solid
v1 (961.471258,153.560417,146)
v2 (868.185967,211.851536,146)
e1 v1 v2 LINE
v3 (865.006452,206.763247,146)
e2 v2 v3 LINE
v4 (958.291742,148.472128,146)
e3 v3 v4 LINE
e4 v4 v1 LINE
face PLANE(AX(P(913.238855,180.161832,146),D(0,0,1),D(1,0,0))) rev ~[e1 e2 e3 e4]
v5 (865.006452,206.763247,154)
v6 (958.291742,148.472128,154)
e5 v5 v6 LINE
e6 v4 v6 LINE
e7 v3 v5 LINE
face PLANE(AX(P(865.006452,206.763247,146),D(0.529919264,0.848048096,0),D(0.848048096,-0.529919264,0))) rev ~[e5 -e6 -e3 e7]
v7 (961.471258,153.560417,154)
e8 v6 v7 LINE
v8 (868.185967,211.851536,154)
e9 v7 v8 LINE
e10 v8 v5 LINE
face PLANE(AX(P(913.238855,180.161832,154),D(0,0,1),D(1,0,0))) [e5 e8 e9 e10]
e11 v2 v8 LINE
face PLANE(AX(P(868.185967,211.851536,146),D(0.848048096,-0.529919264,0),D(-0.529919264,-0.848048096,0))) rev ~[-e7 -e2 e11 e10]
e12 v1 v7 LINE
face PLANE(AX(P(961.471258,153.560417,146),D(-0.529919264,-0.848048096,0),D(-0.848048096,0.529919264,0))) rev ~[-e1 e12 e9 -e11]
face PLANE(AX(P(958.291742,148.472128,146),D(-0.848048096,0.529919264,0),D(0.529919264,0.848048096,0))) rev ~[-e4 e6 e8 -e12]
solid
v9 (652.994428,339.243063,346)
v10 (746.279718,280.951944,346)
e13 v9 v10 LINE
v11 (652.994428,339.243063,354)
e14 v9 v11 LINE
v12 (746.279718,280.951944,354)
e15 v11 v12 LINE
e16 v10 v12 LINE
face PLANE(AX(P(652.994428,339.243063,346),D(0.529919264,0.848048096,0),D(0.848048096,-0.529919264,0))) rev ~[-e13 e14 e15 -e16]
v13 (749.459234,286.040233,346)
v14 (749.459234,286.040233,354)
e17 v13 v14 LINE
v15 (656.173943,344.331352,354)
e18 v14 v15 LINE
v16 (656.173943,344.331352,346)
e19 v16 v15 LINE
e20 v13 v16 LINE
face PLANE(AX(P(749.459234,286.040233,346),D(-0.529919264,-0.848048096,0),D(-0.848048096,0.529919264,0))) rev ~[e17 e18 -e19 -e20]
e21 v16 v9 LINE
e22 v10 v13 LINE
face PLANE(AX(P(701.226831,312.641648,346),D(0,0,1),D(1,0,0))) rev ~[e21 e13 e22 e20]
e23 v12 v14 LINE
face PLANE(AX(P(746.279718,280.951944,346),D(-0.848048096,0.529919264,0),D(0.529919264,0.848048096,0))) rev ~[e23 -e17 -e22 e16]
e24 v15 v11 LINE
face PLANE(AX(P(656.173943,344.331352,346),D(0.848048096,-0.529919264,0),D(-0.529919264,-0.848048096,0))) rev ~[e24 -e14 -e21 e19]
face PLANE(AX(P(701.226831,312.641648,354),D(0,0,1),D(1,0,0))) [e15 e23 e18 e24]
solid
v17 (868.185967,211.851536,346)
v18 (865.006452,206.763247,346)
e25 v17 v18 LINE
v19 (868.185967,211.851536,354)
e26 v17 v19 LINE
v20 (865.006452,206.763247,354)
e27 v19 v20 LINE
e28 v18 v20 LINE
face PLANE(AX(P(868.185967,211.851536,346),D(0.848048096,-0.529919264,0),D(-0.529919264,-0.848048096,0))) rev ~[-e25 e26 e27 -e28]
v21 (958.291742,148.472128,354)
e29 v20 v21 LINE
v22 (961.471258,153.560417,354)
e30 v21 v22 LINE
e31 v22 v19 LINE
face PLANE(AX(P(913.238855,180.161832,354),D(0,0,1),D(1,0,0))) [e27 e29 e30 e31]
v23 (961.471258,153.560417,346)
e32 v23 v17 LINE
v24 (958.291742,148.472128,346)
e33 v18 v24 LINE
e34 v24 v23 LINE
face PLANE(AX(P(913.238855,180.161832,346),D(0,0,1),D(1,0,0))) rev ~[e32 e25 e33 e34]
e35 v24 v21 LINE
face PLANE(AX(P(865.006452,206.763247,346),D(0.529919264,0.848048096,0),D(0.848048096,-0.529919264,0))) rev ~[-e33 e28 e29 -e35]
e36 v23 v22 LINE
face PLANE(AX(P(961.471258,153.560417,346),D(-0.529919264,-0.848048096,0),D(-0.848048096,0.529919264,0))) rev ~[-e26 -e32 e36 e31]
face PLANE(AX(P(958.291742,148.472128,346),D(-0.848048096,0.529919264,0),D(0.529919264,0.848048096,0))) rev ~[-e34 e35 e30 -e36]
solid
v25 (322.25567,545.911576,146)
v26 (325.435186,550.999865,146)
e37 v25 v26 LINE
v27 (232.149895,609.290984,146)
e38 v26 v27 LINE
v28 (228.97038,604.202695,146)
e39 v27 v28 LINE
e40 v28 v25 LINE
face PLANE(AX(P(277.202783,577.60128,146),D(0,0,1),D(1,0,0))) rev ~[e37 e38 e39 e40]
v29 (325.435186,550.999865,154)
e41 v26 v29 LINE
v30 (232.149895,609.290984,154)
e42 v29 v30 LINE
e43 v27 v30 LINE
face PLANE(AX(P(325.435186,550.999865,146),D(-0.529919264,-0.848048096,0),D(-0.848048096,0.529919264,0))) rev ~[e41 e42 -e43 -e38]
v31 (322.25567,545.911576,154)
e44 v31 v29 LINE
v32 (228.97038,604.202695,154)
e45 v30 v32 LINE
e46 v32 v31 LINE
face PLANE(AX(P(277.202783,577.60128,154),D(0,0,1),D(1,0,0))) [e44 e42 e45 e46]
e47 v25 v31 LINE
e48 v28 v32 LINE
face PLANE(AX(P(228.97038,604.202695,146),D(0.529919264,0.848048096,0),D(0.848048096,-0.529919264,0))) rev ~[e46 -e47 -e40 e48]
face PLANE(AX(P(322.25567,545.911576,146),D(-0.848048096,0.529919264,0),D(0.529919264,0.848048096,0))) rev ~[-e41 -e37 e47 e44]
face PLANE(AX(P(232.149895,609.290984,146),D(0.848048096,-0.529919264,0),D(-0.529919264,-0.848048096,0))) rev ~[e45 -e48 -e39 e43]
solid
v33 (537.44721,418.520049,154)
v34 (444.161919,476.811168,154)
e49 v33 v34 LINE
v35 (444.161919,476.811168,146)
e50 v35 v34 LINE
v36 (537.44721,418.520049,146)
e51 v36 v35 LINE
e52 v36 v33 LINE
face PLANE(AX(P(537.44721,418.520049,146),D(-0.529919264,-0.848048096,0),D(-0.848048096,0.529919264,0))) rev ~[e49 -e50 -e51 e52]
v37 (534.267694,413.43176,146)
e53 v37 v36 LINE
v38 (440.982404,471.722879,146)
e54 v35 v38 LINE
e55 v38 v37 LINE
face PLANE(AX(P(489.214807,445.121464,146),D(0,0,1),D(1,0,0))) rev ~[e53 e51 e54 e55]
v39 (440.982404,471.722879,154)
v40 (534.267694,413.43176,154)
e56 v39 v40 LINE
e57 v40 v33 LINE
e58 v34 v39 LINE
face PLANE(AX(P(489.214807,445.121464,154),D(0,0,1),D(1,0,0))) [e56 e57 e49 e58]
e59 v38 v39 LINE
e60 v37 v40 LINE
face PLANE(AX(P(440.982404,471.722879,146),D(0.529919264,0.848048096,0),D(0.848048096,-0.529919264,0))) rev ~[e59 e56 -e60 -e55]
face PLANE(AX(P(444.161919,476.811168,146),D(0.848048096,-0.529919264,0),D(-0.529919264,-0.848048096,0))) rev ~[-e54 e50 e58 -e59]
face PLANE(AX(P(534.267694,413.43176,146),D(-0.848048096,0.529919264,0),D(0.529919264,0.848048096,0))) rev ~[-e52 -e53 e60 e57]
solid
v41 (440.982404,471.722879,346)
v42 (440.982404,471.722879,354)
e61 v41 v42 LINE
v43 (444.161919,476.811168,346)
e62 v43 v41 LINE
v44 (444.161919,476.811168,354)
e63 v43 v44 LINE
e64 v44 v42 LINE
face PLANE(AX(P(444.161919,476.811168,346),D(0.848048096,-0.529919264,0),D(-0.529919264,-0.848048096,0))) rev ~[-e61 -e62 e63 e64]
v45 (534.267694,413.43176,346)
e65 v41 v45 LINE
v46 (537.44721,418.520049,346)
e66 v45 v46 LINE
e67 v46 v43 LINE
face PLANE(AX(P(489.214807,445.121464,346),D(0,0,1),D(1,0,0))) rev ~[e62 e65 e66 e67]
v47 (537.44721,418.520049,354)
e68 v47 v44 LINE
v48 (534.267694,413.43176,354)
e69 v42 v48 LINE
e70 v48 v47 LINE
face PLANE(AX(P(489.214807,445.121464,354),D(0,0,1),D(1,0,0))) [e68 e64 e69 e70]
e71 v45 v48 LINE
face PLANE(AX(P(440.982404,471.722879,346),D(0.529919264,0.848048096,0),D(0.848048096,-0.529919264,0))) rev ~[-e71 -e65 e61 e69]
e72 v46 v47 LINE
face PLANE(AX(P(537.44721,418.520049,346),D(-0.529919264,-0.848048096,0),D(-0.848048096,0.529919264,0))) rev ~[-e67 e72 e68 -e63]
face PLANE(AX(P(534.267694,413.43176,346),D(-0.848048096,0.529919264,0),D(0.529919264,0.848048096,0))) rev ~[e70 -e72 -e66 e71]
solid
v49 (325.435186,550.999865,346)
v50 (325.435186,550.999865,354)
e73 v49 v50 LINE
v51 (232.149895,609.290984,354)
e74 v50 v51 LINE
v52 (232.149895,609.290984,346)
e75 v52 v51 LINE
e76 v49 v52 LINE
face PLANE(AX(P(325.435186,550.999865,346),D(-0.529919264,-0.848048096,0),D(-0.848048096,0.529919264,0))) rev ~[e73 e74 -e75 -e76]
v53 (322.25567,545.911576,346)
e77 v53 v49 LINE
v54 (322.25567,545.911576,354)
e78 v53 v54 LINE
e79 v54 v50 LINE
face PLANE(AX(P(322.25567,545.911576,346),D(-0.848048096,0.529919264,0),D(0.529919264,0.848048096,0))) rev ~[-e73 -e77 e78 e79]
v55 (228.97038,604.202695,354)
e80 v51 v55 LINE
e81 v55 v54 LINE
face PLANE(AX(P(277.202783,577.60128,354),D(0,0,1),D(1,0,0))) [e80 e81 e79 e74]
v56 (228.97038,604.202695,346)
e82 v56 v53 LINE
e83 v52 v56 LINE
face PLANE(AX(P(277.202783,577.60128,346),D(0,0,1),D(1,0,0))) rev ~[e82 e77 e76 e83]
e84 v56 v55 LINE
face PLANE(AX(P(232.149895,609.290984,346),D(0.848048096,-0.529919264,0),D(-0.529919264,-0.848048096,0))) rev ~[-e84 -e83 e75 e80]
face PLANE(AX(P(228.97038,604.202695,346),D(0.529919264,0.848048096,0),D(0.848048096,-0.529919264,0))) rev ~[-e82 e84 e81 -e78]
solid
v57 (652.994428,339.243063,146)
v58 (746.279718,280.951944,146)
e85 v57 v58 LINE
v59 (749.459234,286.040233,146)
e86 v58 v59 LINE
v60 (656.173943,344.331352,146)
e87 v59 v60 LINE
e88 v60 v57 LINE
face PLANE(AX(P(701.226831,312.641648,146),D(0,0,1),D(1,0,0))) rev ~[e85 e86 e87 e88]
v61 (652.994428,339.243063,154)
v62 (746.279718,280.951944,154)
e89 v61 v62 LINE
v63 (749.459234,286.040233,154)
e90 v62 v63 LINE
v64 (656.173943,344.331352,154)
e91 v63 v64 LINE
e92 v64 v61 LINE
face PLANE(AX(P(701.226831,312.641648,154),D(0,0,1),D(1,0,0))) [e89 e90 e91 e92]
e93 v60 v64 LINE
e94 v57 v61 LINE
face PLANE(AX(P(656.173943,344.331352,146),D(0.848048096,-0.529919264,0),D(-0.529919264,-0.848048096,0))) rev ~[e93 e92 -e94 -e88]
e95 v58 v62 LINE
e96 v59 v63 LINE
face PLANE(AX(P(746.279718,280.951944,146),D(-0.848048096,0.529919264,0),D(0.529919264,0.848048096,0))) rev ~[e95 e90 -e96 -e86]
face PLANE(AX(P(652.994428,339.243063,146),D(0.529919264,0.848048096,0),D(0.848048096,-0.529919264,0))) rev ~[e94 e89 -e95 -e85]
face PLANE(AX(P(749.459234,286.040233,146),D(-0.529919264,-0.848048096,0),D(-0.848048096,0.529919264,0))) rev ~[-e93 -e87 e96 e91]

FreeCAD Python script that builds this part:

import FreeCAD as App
import Part
import Sketcher

V = App.Vector
Q = App.Units.Quantity

doc = App.newDocument("Part")
params = doc.addObject("Spreadsheet::Sheet", "Params")
for row, (alias, value) in enumerate([
    ("sketch1_length", "110 mm"),
    ("sketch1_length2", "6 mm"),
    ("pad1_length", "8 mm"),
    ("sketch2_length", "110 mm"),
    ("sketch2_length2", "6 mm"),
    ("pad2_length", "8 mm"),
    ("sketch3_length", "110 mm"),
    ("sketch3_length2", "6 mm"),
    ("pad3_length", "8 mm"),
    ("sketch4_length", "110 mm"),
    ("sketch4_length2", "6 mm"),
    ("pad4_length", "8 mm"),
    ("sketch5_length", "110 mm"),
    ("sketch5_length2", "6 mm"),
    ("pad5_length", "8 mm"),
    ("sketch6_length", "110 mm"),
    ("sketch6_length2", "6 mm"),
    ("pad6_length", "8 mm"),
    ("sketch7_length", "110 mm"),
    ("sketch7_length2", "6 mm"),
    ("pad7_length", "8 mm"),
    ("sketch8_length", "110 mm"),
    ("sketch8_length2", "6 mm"),
    ("pad8_length", "8 mm"),
], start=1):
    params.set(f"A{row}", alias)
    params.set(f"B{row}", "=" + value)
    params.setAlias(f"B{row}", alias)

body = doc.addObject("PartDesign::Body", "Body")

# Sketch on XY plane
sketch1 = body.newObject("Sketcher::SketchObject", "Sketch")
sketch1.AttachmentSupport = (doc.getObject("XY_Plane"), [""])
sketch1.MapMode = "FlatFace"
sketch1.AttachmentOffset = App.Placement(V(0, 0, 146), App.Rotation())
sketch1.addGeometry([
    Part.LineSegment(V(229, 604, 0), V(322, 546, 0)),
    Part.LineSegment(V(322, 546, 0), V(325, 551, 0)),
    Part.LineSegment(V(325, 551, 0), V(232, 609, 0)),
    Part.LineSegment(V(232, 609, 0), V(229, 604, 0)),
], False)
sketch1.addConstraint([
    Sketcher.Constraint("Coincident", 0, 2, 1, 1),
    Sketcher.Constraint("Coincident", 1, 2, 2, 1),
    Sketcher.Constraint("Coincident", 2, 2, 3, 1),
    Sketcher.Constraint("Coincident", 3, 2, 0, 1),
    Sketcher.Constraint("Perpendicular", 0, 1),
    Sketcher.Constraint("Perpendicular", 1, 2),
    Sketcher.Constraint("Perpendicular", 2, 3),
    Sketcher.Constraint("Angle", 0, Q("-32 deg")),
    Sketcher.Constraint("Distance", 0, 110.0),
    Sketcher.Constraint("Distance", 1, 6.0),
    Sketcher.Constraint("DistanceX", -1, 1, 0, 2, 322.25567),
    Sketcher.Constraint("DistanceY", -1, 1, 0, 2, 545.911576),
])
sketch1.setExpression("Constraints[8]", "Params.sketch1_length")
sketch1.setExpression("Constraints[9]", "Params.sketch1_length2")
pad1 = body.newObject("PartDesign::Pad", "Pad")
pad1.Profile = sketch1
pad1.setExpression("Length", "Params.pad1_length")
body2 = doc.addObject("PartDesign::Body", "Body001")

# Sketch on XY plane
sketch2 = body2.newObject("Sketcher::SketchObject", "Sketch001")
sketch2.AttachmentSupport = (doc.getObject("XY_Plane001"), [""])
sketch2.MapMode = "FlatFace"
sketch2.AttachmentOffset = App.Placement(V(0, 0, 146), App.Rotation())
sketch2.addGeometry([
    Part.LineSegment(V(441, 472, 0), V(534, 413, 0)),
    Part.LineSegment(V(534, 413, 0), V(537, 419, 0)),
    Part.LineSegment(V(537, 419, 0), V(444, 477, 0)),
    Part.LineSegment(V(444, 477, 0), V(441, 472, 0)),
], False)
sketch2.addConstraint([
    Sketcher.Constraint("Coincident", 0, 2, 1, 1),
    Sketcher.Constraint("Coincident", 1, 2, 2, 1),
    Sketcher.Constraint("Coincident", 2, 2, 3, 1),
    Sketcher.Constraint("Coincident", 3, 2, 0, 1),
    Sketcher.Constraint("Perpendicular", 0, 1),
    Sketcher.Constraint("Perpendicular", 1, 2),
    Sketcher.Constraint("Perpendicular", 2, 3),
    Sketcher.Constraint("Angle", 0, Q("-32 deg")),
    Sketcher.Constraint("Distance", 0, 110.0),
    Sketcher.Constraint("Distance", 1, 6.0),
    Sketcher.Constraint("DistanceY", -1, 1, 0, 2, 413.43176),
    Sketcher.Constraint("DistanceX", -1, 1, 1, 2, 537.44721),
])
sketch2.setExpression("Constraints[8]", "Params.sketch2_length")
sketch2.setExpression("Constraints[9]", "Params.sketch2_length2")
pad2 = body2.newObject("PartDesign::Pad", "Pad001")
pad2.Profile = sketch2
pad2.setExpression("Length", "Params.pad2_length")
body3 = doc.addObject("PartDesign::Body", "Body002")

# Sketch on XY plane
sketch3 = body3.newObject("Sketcher::SketchObject", "Sketch002")
sketch3.AttachmentSupport = (doc.getObject("XY_Plane002"), [""])
sketch3.MapMode = "FlatFace"
sketch3.AttachmentOffset = App.Placement(V(0, 0, 146), App.Rotation())
sketch3.addGeometry([
    Part.LineSegment(V(653, 339, 0), V(746, 281, 0)),
    Part.LineSegment(V(746, 281, 0), V(749, 286, 0)),
    Part.LineSegment(V(749, 286, 0), V(656, 344, 0)),
    Part.LineSegment(V(656, 344, 0), V(653, 339, 0)),
], False)
sketch3.addConstraint([
    Sketcher.Constraint("Coincident", 0, 2, 1, 1),
    Sketcher.Constraint("Coincident", 1, 2, 2, 1),
    Sketcher.Constraint("Coincident", 2, 2, 3, 1),
    Sketcher.Constraint("Coincident", 3, 2, 0, 1),
    Sketcher.Constraint("Perpendicular", 0, 1),
    Sketcher.Constraint("Perpendicular", 1, 2),
    Sketcher.Constraint("Perpendicular", 2, 3),
    Sketcher.Constraint("Angle", 0, Q("-32 deg")),
    Sketcher.Constraint("Distance", 0, 110.0),
    Sketcher.Constraint("Distance", 1, 6.0),
    Sketcher.Constraint("DistanceX", -1, 1, 0, 2, 746.279718),
    Sketcher.Constraint("DistanceY", -1, 1, 2, 2, 344.331352),
])
sketch3.setExpression("Constraints[8]", "Params.sketch3_length")
sketch3.setExpression("Constraints[9]", "Params.sketch3_length2")
pad3 = body3.newObject("PartDesign::Pad", "Pad002")
pad3.Profile = sketch3
pad3.setExpression("Length", "Params.pad3_length")
body4 = doc.addObject("PartDesign::Body", "Body003")

# Sketch on XY plane
sketch4 = body4.newObject("Sketcher::SketchObject", "Sketch003")
sketch4.AttachmentSupport = (doc.getObject("XY_Plane003"), [""])
sketch4.MapMode = "FlatFace"
sketch4.AttachmentOffset = App.Placement(V(0, 0, 146), App.Rotation())
sketch4.addGeometry([
    Part.LineSegment(V(865, 207, 0), V(958, 148, 0)),
    Part.LineSegment(V(958, 148, 0), V(961, 154, 0)),
    Part.LineSegment(V(961, 154, 0), V(868, 212, 0)),
    Part.LineSegment(V(868, 212, 0), V(865, 207, 0)),
], False)
sketch4.addConstraint([
    Sketcher.Constraint("Coincident", 0, 2, 1, 1),
    Sketcher.Constraint("Coincident", 1, 2, 2, 1),
    Sketcher.Constraint("Coincident", 2, 2, 3, 1),
    Sketcher.Constraint("Coincident", 3, 2, 0, 1),
    Sketcher.Constraint("Perpendicular", 0, 1),
    Sketcher.Constraint("Perpendicular", 1, 2),
    Sketcher.Constraint("Perpendicular", 2, 3),
    Sketcher.Constraint("Angle", 0, Q("-32 deg")),
    Sketcher.Constraint("Distance", 0, 110.0),
    Sketcher.Constraint("Distance", 1, 6.0),
    Sketcher.Constraint("DistanceY", -1, 1, 0, 2, 148.472128),
    Sketcher.Constraint("DistanceX", -1, 1, 3, 2, 865.006452),
])
sketch4.setExpression("Constraints[8]", "Params.sketch4_length")
sketch4.setExpression("Constraints[9]", "Params.sketch4_length2")
pad4 = body4.newObject("PartDesign::Pad", "Pad003")
pad4.Profile = sketch4
pad4.setExpression("Length", "Params.pad4_length")
body5 = doc.addObject("PartDesign::Body", "Body004")

# Sketch on XY plane
sketch5 = body5.newObject("Sketcher::SketchObject", "Sketch004")
sketch5.AttachmentSupport = (doc.getObject("XY_Plane004"), [""])
sketch5.MapMode = "FlatFace"
sketch5.AttachmentOffset = App.Placement(V(0, 0, 346), App.Rotation())
sketch5.addGeometry([
    Part.LineSegment(V(229, 604, 0), V(322, 546, 0)),
    Part.LineSegment(V(322, 546, 0), V(325, 551, 0)),
    Part.LineSegment(V(325, 551, 0), V(232, 609, 0)),
    Part.LineSegment(V(232, 609, 0), V(229, 604, 0)),
], False)
sketch5.addConstraint([
    Sketcher.Constraint("Coincident", 0, 2, 1, 1),
    Sketcher.Constraint("Coincident", 1, 2, 2, 1),
    Sketcher.Constraint("Coincident", 2, 2, 3, 1),
    Sketcher.Constraint("Coincident", 3, 2, 0, 1),
    Sketcher.Constraint("Perpendicular", 0, 1),
    Sketcher.Constraint("Perpendicular", 1, 2),
    Sketcher.Constraint("Perpendicular", 2, 3),
    Sketcher.Constraint("Angle", 0, Q("-32 deg")),
    Sketcher.Constraint("Distance", 0, 110.0),
    Sketcher.Constraint("Distance", 1, 6.0),
    Sketcher.Constraint("DistanceX", -1, 1, 0, 2, 322.25567),
    Sketcher.Constraint("DistanceY", -1, 1, 0, 2, 545.911576),
])
sketch5.setExpression("Constraints[8]", "Params.sketch5_length")
sketch5.setExpression("Constraints[9]", "Params.sketch5_length2")
pad5 = body5.newObject("PartDesign::Pad", "Pad004")
pad5.Profile = sketch5
pad5.setExpression("Length", "Params.pad5_length")
body6 = doc.addObject("PartDesign::Body", "Body005")

# Sketch on XY plane
sketch6 = body6.newObject("Sketcher::SketchObject", "Sketch005")
sketch6.AttachmentSupport = (doc.getObject("XY_Plane005"), [""])
sketch6.MapMode = "FlatFace"
sketch6.AttachmentOffset = App.Placement(V(0, 0, 346), App.Rotation())
sketch6.addGeometry([
    Part.LineSegment(V(441, 472, 0), V(534, 413, 0)),
    Part.LineSegment(V(534, 413, 0), V(537, 419, 0)),
    Part.LineSegment(V(537, 419, 0), V(444, 477, 0)),
    Part.LineSegment(V(444, 477, 0), V(441, 472, 0)),
], False)
sketch6.addConstraint([
    Sketcher.Constraint("Coincident", 0, 2, 1, 1),
    Sketcher.Constraint("Coincident", 1, 2, 2, 1),
    Sketcher.Constraint("Coincident", 2, 2, 3, 1),
    Sketcher.Constraint("Coincident", 3, 2, 0, 1),
    Sketcher.Constraint("Perpendicular", 0, 1),
    Sketcher.Constraint("Perpendicular", 1, 2),
    Sketcher.Constraint("Perpendicular", 2, 3),
    Sketcher.Constraint("Angle", 0, Q("-32 deg")),
    Sketcher.Constraint("Distance", 0, 110.0),
    Sketcher.Constraint("Distance", 1, 6.0),
    Sketcher.Constraint("DistanceY", -1, 1, 0, 2, 413.43176),
    Sketcher.Constraint("DistanceX", -1, 1, 1, 2, 537.44721),
])
sketch6.setExpression("Constraints[8]", "Params.sketch6_length")
sketch6.setExpression("Constraints[9]", "Params.sketch6_length2")
pad6 = body6.newObject("PartDesign::Pad", "Pad005")
pad6.Profile = sketch6
pad6.setExpression("Length", "Params.pad6_length")
body7 = doc.addObject("PartDesign::Body", "Body006")

# Sketch on XY plane
sketch7 = body7.newObject("Sketcher::SketchObject", "Sketch006")
sketch7.AttachmentSupport = (doc.getObject("XY_Plane006"), [""])
sketch7.MapMode = "FlatFace"
sketch7.AttachmentOffset = App.Placement(V(0, 0, 346), App.Rotation())
sketch7.addGeometry([
    Part.LineSegment(V(653, 339, 0), V(746, 281, 0)),
    Part.LineSegment(V(746, 281, 0), V(749, 286, 0)),
    Part.LineSegment(V(749, 286, 0), V(656, 344, 0)),
    Part.LineSegment(V(656, 344, 0), V(653, 339, 0)),
], False)
sketch7.addConstraint([
    Sketcher.Constraint("Coincident", 0, 2, 1, 1),
    Sketcher.Constraint("Coincident", 1, 2, 2, 1),
    Sketcher.Constraint("Coincident", 2, 2, 3, 1),
    Sketcher.Constraint("Coincident", 3, 2, 0, 1),
    Sketcher.Constraint("Perpendicular", 0, 1),
    Sketcher.Constraint("Perpendicular", 1, 2),
    Sketcher.Constraint("Perpendicular", 2, 3),
    Sketcher.Constraint("Angle", 0, Q("-32 deg")),
    Sketcher.Constraint("Distance", 0, 110.0),
    Sketcher.Constraint("Distance", 1, 6.0),
    Sketcher.Constraint("DistanceX", -1, 1, 0, 2, 746.279718),
    Sketcher.Constraint("DistanceY", -1, 1, 2, 2, 344.331352),
])
sketch7.setExpression("Constraints[8]", "Params.sketch7_length")
sketch7.setExpression("Constraints[9]", "Params.sketch7_length2")
pad7 = body7.newObject("PartDesign::Pad", "Pad006")
pad7.Profile = sketch7
pad7.setExpression("Length", "Params.pad7_length")
body8 = doc.addObject("PartDesign::Body", "Body007")

# Sketch on XY plane
sketch8 = body8.newObject("Sketcher::SketchObject", "Sketch007")
sketch8.AttachmentSupport = (doc.getObject("XY_Plane007"), [""])
sketch8.MapMode = "FlatFace"
sketch8.AttachmentOffset = App.Placement(V(0, 0, 346), App.Rotation())
sketch8.addGeometry([
    Part.LineSegment(V(865, 207, 0), V(958, 148, 0)),
    Part.LineSegment(V(958, 148, 0), V(961, 154, 0)),
    Part.LineSegment(V(961, 154, 0), V(868, 212, 0)),
    Part.LineSegment(V(868, 212, 0), V(865, 207, 0)),
], False)
sketch8.addConstraint([
    Sketcher.Constraint("Coincident", 0, 2, 1, 1),
    Sketcher.Constraint("Coincident", 1, 2, 2, 1),
    Sketcher.Constraint("Coincident", 2, 2, 3, 1),
    Sketcher.Constraint("Coincident", 3, 2, 0, 1),
    Sketcher.Constraint("Perpendicular", 0, 1),
    Sketcher.Constraint("Perpendicular", 1, 2),
    Sketcher.Constraint("Perpendicular", 2, 3),
    Sketcher.Constraint("Angle", 0, Q("-32 deg")),
    Sketcher.Constraint("Distance", 0, 110.0),
    Sketcher.Constraint("Distance", 1, 6.0),
    Sketcher.Constraint("DistanceY", -1, 1, 0, 2, 148.472128),
    Sketcher.Constraint("DistanceX", -1, 1, 3, 2, 865.006452),
])
sketch8.setExpression("Constraints[8]", "Params.sketch8_length")
sketch8.setExpression("Constraints[9]", "Params.sketch8_length2")
pad8 = body8.newObject("PartDesign::Pad", "Pad007")
pad8.Profile = sketch8
pad8.setExpression("Length", "Params.pad8_length")

doc.recompute()
